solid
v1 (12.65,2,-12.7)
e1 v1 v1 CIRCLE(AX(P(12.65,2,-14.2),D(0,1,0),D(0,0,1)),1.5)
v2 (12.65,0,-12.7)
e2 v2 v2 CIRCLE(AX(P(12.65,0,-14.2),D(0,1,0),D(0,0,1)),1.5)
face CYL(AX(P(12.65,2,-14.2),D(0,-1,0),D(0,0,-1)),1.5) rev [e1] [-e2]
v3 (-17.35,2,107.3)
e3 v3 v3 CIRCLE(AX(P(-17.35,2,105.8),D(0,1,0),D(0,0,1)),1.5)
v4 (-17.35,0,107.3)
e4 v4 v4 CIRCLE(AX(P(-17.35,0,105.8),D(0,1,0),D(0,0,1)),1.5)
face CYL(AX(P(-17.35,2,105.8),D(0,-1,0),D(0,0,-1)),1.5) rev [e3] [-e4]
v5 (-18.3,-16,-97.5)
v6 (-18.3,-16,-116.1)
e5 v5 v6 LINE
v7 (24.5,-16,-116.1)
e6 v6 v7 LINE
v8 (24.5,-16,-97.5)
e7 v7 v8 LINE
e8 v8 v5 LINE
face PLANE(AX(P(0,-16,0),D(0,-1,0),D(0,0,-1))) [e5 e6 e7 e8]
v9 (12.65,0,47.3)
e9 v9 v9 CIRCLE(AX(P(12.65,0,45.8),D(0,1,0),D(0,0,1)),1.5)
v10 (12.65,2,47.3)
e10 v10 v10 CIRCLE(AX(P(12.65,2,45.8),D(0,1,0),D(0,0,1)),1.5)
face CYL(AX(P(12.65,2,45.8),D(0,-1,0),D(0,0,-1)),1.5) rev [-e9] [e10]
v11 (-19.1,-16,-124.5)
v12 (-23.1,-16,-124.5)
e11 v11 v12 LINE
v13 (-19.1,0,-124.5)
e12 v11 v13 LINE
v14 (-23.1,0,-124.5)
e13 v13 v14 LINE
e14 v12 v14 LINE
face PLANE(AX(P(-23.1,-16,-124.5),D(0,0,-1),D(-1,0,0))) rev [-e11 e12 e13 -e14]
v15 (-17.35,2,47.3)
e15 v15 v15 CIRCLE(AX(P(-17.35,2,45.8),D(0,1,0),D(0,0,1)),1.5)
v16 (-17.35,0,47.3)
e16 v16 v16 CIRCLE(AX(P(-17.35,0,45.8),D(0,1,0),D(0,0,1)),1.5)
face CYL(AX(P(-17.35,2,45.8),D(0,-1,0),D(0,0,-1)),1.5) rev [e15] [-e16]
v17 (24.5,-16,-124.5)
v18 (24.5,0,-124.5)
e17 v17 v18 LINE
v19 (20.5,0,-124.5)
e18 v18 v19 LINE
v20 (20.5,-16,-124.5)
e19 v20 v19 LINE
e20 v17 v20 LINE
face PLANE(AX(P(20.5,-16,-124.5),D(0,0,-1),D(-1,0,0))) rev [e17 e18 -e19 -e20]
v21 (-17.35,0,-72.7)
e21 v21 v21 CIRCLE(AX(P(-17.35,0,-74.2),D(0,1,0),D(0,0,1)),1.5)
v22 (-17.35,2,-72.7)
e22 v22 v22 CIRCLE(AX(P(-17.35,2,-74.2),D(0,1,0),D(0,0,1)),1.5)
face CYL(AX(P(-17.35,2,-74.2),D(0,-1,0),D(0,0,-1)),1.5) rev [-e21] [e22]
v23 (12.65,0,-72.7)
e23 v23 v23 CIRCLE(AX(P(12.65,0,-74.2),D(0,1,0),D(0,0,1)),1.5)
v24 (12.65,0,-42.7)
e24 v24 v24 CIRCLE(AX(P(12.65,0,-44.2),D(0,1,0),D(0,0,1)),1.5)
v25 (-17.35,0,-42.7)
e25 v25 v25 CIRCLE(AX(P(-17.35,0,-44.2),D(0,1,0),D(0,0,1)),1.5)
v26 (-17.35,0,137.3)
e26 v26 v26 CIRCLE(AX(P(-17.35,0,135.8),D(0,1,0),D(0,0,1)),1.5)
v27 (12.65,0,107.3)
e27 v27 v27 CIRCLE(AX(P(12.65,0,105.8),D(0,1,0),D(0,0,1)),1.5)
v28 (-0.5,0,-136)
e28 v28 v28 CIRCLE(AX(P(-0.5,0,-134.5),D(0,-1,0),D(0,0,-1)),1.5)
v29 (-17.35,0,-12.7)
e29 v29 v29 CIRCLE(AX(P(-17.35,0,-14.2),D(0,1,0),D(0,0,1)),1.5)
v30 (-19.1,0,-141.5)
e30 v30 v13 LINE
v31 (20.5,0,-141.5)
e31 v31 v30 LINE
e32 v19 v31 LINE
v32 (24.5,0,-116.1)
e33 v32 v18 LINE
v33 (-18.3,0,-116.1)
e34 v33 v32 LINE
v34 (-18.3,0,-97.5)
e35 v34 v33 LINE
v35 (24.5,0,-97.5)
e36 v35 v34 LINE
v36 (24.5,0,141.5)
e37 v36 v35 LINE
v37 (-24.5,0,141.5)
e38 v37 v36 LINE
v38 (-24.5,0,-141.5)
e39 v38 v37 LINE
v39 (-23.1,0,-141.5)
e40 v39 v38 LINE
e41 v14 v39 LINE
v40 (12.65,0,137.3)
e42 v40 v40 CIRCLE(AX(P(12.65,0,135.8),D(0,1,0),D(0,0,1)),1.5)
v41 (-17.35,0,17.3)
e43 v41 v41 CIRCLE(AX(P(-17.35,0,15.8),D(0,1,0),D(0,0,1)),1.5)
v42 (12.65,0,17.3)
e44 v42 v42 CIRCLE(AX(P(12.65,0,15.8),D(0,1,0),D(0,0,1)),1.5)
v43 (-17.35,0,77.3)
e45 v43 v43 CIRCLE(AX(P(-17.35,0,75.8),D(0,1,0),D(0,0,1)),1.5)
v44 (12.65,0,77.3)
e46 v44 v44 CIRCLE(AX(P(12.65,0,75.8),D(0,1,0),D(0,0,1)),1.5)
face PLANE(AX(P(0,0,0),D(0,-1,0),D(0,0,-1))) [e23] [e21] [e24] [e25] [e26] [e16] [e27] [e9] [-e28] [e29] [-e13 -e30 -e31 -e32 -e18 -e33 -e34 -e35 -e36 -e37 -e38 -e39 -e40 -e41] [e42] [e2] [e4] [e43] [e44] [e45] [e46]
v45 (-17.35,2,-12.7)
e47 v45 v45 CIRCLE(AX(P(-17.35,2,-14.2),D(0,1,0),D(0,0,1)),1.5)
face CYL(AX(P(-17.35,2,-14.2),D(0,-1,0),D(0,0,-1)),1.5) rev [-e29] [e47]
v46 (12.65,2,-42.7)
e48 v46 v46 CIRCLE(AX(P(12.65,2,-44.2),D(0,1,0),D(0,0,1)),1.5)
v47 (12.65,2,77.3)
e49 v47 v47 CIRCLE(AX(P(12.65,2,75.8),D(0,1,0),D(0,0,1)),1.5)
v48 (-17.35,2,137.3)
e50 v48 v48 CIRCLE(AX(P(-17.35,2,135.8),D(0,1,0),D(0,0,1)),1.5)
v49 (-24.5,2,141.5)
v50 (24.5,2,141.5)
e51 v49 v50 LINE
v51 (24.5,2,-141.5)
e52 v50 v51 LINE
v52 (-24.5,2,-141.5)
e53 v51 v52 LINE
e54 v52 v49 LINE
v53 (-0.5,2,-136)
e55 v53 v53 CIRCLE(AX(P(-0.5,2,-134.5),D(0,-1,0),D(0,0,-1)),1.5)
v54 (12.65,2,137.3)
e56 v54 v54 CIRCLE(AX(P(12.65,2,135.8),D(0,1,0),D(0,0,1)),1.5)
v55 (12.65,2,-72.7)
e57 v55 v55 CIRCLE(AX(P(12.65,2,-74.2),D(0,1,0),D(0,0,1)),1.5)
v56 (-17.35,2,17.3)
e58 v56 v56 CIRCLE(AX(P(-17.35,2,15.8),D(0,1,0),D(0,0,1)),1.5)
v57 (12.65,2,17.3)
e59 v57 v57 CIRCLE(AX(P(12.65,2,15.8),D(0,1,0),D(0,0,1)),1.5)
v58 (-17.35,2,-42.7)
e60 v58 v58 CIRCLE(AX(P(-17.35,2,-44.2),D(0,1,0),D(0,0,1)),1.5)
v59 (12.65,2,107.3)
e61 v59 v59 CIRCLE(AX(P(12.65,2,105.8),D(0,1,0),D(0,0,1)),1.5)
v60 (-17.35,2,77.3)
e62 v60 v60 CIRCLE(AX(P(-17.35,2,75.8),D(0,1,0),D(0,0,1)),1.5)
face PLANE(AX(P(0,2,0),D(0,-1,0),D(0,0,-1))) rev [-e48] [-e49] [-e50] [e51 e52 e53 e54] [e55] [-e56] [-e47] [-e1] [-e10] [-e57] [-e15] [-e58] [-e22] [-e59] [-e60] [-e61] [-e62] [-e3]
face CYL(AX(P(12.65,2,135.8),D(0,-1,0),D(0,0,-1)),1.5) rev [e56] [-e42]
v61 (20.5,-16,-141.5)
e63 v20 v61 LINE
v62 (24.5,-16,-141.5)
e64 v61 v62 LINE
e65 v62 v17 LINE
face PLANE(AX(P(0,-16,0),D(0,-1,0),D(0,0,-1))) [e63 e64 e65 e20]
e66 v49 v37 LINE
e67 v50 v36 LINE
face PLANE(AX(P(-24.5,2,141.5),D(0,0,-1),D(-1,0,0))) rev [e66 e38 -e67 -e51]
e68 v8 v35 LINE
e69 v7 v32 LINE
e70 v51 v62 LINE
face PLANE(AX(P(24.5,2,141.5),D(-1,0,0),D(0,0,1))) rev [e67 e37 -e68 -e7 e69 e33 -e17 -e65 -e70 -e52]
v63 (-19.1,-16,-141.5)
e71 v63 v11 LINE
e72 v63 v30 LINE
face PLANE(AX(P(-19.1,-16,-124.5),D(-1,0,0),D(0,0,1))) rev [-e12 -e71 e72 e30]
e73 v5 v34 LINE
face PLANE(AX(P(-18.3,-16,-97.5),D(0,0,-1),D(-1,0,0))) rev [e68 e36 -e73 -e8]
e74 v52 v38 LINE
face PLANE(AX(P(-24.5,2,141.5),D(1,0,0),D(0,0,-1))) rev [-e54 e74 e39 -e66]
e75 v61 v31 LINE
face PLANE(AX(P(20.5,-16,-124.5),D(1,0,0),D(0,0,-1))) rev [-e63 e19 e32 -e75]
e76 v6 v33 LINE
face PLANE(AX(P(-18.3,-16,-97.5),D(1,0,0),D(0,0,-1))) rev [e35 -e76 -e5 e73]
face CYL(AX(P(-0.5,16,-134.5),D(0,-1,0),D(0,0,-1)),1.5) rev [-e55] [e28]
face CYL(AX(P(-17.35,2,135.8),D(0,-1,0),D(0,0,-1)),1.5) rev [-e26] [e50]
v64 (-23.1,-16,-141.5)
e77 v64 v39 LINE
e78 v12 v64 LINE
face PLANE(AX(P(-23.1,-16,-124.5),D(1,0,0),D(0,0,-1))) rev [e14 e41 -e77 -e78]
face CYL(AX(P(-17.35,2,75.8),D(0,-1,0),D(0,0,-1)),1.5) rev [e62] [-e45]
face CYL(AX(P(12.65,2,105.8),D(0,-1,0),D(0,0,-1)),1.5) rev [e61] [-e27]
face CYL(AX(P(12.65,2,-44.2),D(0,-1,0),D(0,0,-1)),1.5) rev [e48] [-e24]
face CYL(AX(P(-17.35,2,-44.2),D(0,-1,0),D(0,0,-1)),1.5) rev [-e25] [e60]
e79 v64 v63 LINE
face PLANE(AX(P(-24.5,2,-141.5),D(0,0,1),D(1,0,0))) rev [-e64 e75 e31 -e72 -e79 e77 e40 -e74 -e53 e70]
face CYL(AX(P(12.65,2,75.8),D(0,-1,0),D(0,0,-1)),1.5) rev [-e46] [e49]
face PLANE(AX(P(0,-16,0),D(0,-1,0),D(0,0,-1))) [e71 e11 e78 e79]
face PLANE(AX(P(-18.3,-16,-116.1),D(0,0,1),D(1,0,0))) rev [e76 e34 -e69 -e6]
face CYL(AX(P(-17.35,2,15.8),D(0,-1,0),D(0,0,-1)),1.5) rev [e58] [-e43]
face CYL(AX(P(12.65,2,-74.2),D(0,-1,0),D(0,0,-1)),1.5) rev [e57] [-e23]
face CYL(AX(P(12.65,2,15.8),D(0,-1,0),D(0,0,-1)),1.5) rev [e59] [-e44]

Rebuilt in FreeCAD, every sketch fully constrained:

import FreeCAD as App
import Part
import Sketcher
Q = App.Units.Quantity

doc = App.newDocument("Part")
params = doc.addObject("Spreadsheet::Sheet", "Params")
for row, (alias, value) in enumerate([
    ("sketch1_diameter", "3 mm"),
    ("sketch1_width", "49 mm"),
    ("sketch1_height", "283 mm"),
    ("pad1_length", "2 mm"),
    ("sketch2_width", "4 mm"),
    ("sketch2_height", "17 mm"),
    ("sketch2_width2", "42.8 mm"),
    ("sketch2_height2", "18.6 mm"),
    ("pad2_length", "16 mm"),
    ("sketch3_diameter", "3 mm"),
    ("pocket1_length", "16 mm"),
], start=1):
    params.set(f"A{row}", alias)
    params.set(f"B{row}", "=" + value)
    params.setAlias(f"B{row}", alias)

body = doc.addObject("PartDesign::Body", "Body")

# Sketch on XZ plane
sketch1 = body.newObject("Sketcher::SketchObject", "Sketch")
sketch1.AttachmentSupport = (doc.getObject("XZ_Plane"), [""])
sketch1.MapMode = "FlatFace"
sketch1.addGeometry([
    Part.LineSegment(App.Vector(-24.5, -141.5, 0), App.Vector(-24.5, 141.5, 0)),  # 0
    Part.LineSegment(App.Vector(-24.5, 141.5, 0), App.Vector(24.5, 141.5, 0)),  # 1
    Part.LineSegment(App.Vector(24.5, 141.5, 0), App.Vector(24.5, -141.5, 0)),  # 2
    Part.LineSegment(App.Vector(24.5, -141.5, 0), App.Vector(-24.5, -141.5, 0)),  # 3
    Part.Circle(App.Vector(-17.4, 135.8, 0), App.Vector(0, 0, 1), 1.5),  # 4
    Part.Circle(App.Vector(-17.4, 105.8, 0), App.Vector(0, 0, 1), 1.5),  # 5
    Part.Circle(App.Vector(-17.4, 75.8, 0), App.Vector(0, 0, 1), 1.5),  # 6
    Part.Circle(App.Vector(-17.4, 45.8, 0), App.Vector(0, 0, 1), 1.5),  # 7
    Part.Circle(App.Vector(12.7, 135.8, 0), App.Vector(0, 0, 1), 1.5),  # 8
    Part.Circle(App.Vector(12.7, 105.8, 0), App.Vector(0, 0, 1), 1.5),  # 9
    Part.Circle(App.Vector(12.7, 75.8, 0), App.Vector(0, 0, 1), 1.5),  # 10
    Part.Circle(App.Vector(12.7, 45.8, 0), App.Vector(0, 0, 1), 1.5),  # 11
    Part.Circle(App.Vector(-17.4, 15.8, 0), App.Vector(0, 0, 1), 1.5),  # 12
    Part.Circle(App.Vector(-17.4, -14.2, 0), App.Vector(0, 0, 1), 1.5),  # 13
    Part.Circle(App.Vector(-17.4, -44.2, 0), App.Vector(0, 0, 1), 1.5),  # 14
    Part.Circle(App.Vector(-17.4, -74.2, 0), App.Vector(0, 0, 1), 1.5),  # 15
    Part.Circle(App.Vector(12.7, 15.8, 0), App.Vector(0, 0, 1), 1.5),  # 16
    Part.Circle(App.Vector(12.7, -14.2, 0), App.Vector(0, 0, 1), 1.5),  # 17
    Part.Circle(App.Vector(12.7, -44.2, 0), App.Vector(0, 0, 1), 1.5),  # 18
    Part.Circle(App.Vector(12.7, -74.2, 0), App.Vector(0, 0, 1), 1.5),  # 19
], False)
sketch1.addConstraint([
    Sketcher.Constraint("Coincident", 0, 2, 1, 1),
    Sketcher.Constraint("Coincident", 1, 2, 2, 1),
    Sketcher.Constraint("Coincident", 2, 2, 3, 1),
    Sketcher.Constraint("Coincident", 3, 2, 0, 1),
    Sketcher.Constraint("Vertical", 0),
    Sketcher.Constraint("Horizontal", 1),
    Sketcher.Constraint("Vertical", 2),
    Sketcher.Constraint("Horizontal", 3),
    Sketcher.Constraint("Equal", 4, 5),
    Sketcher.Constraint("Equal", 5, 6),
    Sketcher.Constraint("Equal", 6, 7),
    Sketcher.Constraint("Equal", 7, 8),
    Sketcher.Constraint("Equal", 8, 9),
    Sketcher.Constraint("Equal", 9, 10),
    Sketcher.Constraint("Equal", 10, 11),
    Sketcher.Constraint("Equal", 11, 12),
    Sketcher.Constraint("Equal", 12, 13),
    Sketcher.Constraint("Equal", 13, 14),
    Sketcher.Constraint("Equal", 14, 15),
    Sketcher.Constraint("Equal", 15, 16),
    Sketcher.Constraint("Equal", 16, 17),
    Sketcher.Constraint("Equal", 17, 18),
    Sketcher.Constraint("Equal", 18, 19),
    Sketcher.Constraint("Symmetric", 0, 2, 2, 2, -1, 1),
    Sketcher.Constraint("Horizontal", 4, 3, 8, 3),
    Sketcher.Constraint("Horizontal", 5, 3, 9, 3),
    Sketcher.Constraint("Horizontal", 6, 3, 10, 3),
    Sketcher.Constraint("Horizontal", 7, 3, 11, 3),
    Sketcher.Constraint("Horizontal", 12, 3, 16, 3),
    Sketcher.Constraint("Horizontal", 13, 3, 17, 3),
    Sketcher.Constraint("Horizontal", 14, 3, 18, 3),
    Sketcher.Constraint("Horizontal", 15, 3, 19, 3),
    Sketcher.Constraint("Vertical", 4, 3, 5, 3),
    Sketcher.Constraint("Vertical", 5, 3, 6, 3),
    Sketcher.Constraint("Vertical", 6, 3, 7, 3),
    Sketcher.Constraint("Vertical", 8, 3, 9, 3),
    Sketcher.Constraint("Vertical", 9, 3, 10, 3),
    Sketcher.Constraint("Vertical", 10, 3, 11, 3),
    Sketcher.Constraint("Vertical", 7, 3, 12, 3),
    Sketcher.Constraint("Vertical", 12, 3, 13, 3),
    Sketcher.Constraint("Vertical", 13, 3, 14, 3),
    Sketcher.Constraint("Vertical", 14, 3, 15, 3),
    Sketcher.Constraint("Vertical", 11, 3, 16, 3),
    Sketcher.Constraint("Vertical", 16, 3, 17, 3),
    Sketcher.Constraint("Vertical", 17, 3, 18, 3),
    Sketcher.Constraint("Vertical", 18, 3, 19, 3),
    Sketcher.Constraint("Diameter", 4, Q("3 mm")),
    Sketcher.Constraint("DistanceX", 1, 1, 1, 2, Q("49 mm")),
    Sketcher.Constraint("DistanceY", 0, 1, 0, 2, Q("283 mm")),
    Sketcher.Constraint("DistanceY", 5, 3, 4, 3, Q("30 mm")),
    Sketcher.Constraint("DistanceY", 6, 3, 5, 3, Q("30 mm")),
    Sketcher.Constraint("DistanceY", 7, 3, 6, 3, Q("30 mm")),
    Sketcher.Constraint("DistanceX", 4, 3, 8, 3, Q("30 mm")),
    Sketcher.Constraint("DistanceY", 12, 3, 7, 3, Q("30 mm")),
    Sketcher.Constraint("DistanceY", 13, 3, 12, 3, Q("30 mm")),
    Sketcher.Constraint("DistanceY", 14, 3, 13, 3, Q("30 mm")),
    Sketcher.Constraint("DistanceY", 15, 3, 14, 3, Q("30 mm")),
    Sketcher.Constraint("DistanceY", -1, 1, 4, 3, Q("135.8 mm")),
    Sketcher.Constraint("DistanceX", 4, 3, -1, 1, Q("17.35 mm")),
])
sketch1.setExpression("Constraints[46]", "Params.sketch1_diameter")
sketch1.setExpression("Constraints[47]", "Params.sketch1_width")
sketch1.setExpression("Constraints[48]", "Params.sketch1_height")
pad1 = body.newObject("PartDesign::Pad", "Pad")
pad1.Profile = sketch1
pad1.setExpression("Length", "Params.pad1_length")
pad1.Reversed = True

# Sketch on XZ plane
sketch2 = body.newObject("Sketcher::SketchObject", "Sketch001")
sketch2.AttachmentSupport = (doc.getObject("XZ_Plane"), [""])
sketch2.MapMode = "FlatFace"
sketch2.addGeometry([
    Part.LineSegment(App.Vector(-18.3, -97.5, 0), App.Vector(-18.3, -116.1, 0)),  # 0
    Part.LineSegment(App.Vector(-18.3, -116.1, 0), App.Vector(24.5, -116.1, 0)),  # 1
    Part.LineSegment(App.Vector(24.5, -116.1, 0), App.Vector(24.5, -97.5, 0)),  # 2
    Part.LineSegment(App.Vector(24.5, -97.5, 0), App.Vector(-18.3, -97.5, 0)),  # 3
    Part.LineSegment(App.Vector(-23.1, -124.5, 0), App.Vector(-23.1, -141.5, 0)),  # 4
    Part.LineSegment(App.Vector(-23.1, -141.5, 0), App.Vector(-19.1, -141.5, 0)),  # 5
    Part.LineSegment(App.Vector(-19.1, -141.5, 0), App.Vector(-19.1, -124.5, 0)),  # 6
    Part.LineSegment(App.Vector(-19.1, -124.5, 0), App.Vector(-23.1, -124.5, 0)),  # 7
    Part.LineSegment(App.Vector(20.5, -124.5, 0), App.Vector(20.5, -141.5, 0)),  # 8
    Part.LineSegment(App.Vector(20.5, -141.5, 0), App.Vector(24.5, -141.5, 0)),  # 9
    Part.LineSegment(App.Vector(24.5, -141.5, 0), App.Vector(24.5, -124.5, 0)),  # 10
    Part.LineSegment(App.Vector(24.5, -124.5, 0), App.Vector(20.5, -124.5, 0)),  # 11
], False)
sketch2.addConstraint([
    Sketcher.Constraint("Coincident", 0, 2, 1, 1),
    Sketcher.Constraint("Coincident", 1, 2, 2, 1),
    Sketcher.Constraint("Coincident", 2, 2, 3, 1),
    Sketcher.Constraint("Coincident", 3, 2, 0, 1),
    Sketcher.Constraint("Coincident", 4, 2, 5, 1),
    Sketcher.Constraint("Coincident", 5, 2, 6, 1),
    Sketcher.Constraint("Coincident", 6, 2, 7, 1),
    Sketcher.Constraint("Coincident", 7, 2, 4, 1),
    Sketcher.Constraint("Coincident", 8, 2, 9, 1),
    Sketcher.Constraint("Coincident", 9, 2, 10, 1),
    Sketcher.Constraint("Coincident", 10, 2, 11, 1),
    Sketcher.Constraint("Coincident", 11, 2, 8, 1),
    Sketcher.Constraint("Vertical", 0),
    Sketcher.Constraint("Horizontal", 1),
    Sketcher.Constraint("Vertical", 2),
    Sketcher.Constraint("Horizontal", 3),
    Sketcher.Constraint("Vertical", 4),
    Sketcher.Constraint("Horizontal", 5),
    Sketcher.Constraint("Vertical", 6),
    Sketcher.Constraint("Horizontal", 7),
    Sketcher.Constraint("Vertical", 8),
    Sketcher.Constraint("Horizontal", 9),
    Sketcher.Constraint("Vertical", 10),
    Sketcher.Constraint("Horizontal", 11),
    Sketcher.Constraint("Horizontal", 5, 2, 8, 2),
    Sketcher.Constraint("Horizontal", 7, 2, 10, 2),
    Sketcher.Constraint("Vertical", 2, 2, 9, 2),
    Sketcher.Constraint("Equal", 7, 9),
    Sketcher.Constraint("DistanceX", 5, 1, 5, 2, Q("4 mm")),
    Sketcher.Constraint("DistanceY", 4, 2, 4, 1, Q("17 mm")),
    Sketcher.Constraint("DistanceX", 1, 1, 1, 2, Q("42.8 mm")),
    Sketcher.Constraint("DistanceY", 0, 2, 0, 1, Q("18.6 mm")),
    Sketcher.Constraint("DistanceY", 4, 2, 3, 2, Q("44 mm")),
    Sketcher.Constraint("DistanceX", 0, 2, -1, 1, Q("18.3 mm")),
    Sketcher.Constraint("DistanceY", 0, 2, -1, 1, Q("116.1 mm")),
    Sketcher.Constraint("DistanceX", 4, 2, -1, 1, Q("23.1 mm")),
])
sketch2.setExpression("Constraints[28]", "Params.sketch2_width")
sketch2.setExpression("Constraints[29]", "Params.sketch2_height")
sketch2.setExpression("Constraints[30]", "Params.sketch2_width2")
sketch2.setExpression("Constraints[31]", "Params.sketch2_height2")
pad2 = body.newObject("PartDesign::Pad", "Pad001")
pad2.Profile = sketch2
pad2.setExpression("Length", "Params.pad2_length")

# Sketch on XZ plane
sketch3 = body.newObject("Sketcher::SketchObject", "Sketch002")
sketch3.AttachmentSupport = (doc.getObject("XZ_Plane"), [""])
sketch3.MapMode = "FlatFace"
sketch3.addGeometry(Part.Circle(App.Vector(-0.5, -134.5, 0), App.Vector(0, 0, 1), 1.5), False)
sketch3.addConstraint([
    Sketcher.Constraint("Diameter", 0, Q("3 mm")),
    Sketcher.Constraint("DistanceX", 0, 3, -1, 1, Q("0.5 mm")),
    Sketcher.Constraint("DistanceY", 0, 3, -1, 1, Q("134.5 mm")),
])
sketch3.setExpression("Constraints[0]", "Params.sketch3_diameter")
pocket1 = body.newObject("PartDesign::Pocket", "Pocket")
pocket1.Profile = sketch3
pocket1.setExpression("Length", "Params.pocket1_length")

doc.recompute()
